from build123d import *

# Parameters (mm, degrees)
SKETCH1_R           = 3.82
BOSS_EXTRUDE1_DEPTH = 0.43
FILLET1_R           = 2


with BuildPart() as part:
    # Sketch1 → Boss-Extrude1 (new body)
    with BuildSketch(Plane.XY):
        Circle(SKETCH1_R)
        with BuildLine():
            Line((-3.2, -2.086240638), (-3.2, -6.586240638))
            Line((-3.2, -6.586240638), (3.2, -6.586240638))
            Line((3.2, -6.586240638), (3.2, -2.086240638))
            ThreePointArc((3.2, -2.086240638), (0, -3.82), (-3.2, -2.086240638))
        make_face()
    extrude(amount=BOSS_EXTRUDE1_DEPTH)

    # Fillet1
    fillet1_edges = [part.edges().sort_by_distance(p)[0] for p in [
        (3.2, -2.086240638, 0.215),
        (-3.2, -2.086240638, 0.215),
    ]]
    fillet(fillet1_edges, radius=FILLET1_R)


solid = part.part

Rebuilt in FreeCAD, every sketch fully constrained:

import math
import FreeCAD as App
import Part
import Sketcher
from FreeCAD import Vector
Q = App.Units.Quantity


def edges_at(feature, points):
    """Names of the edges that pass closest to the given points."""
    edges = feature.Shape.Edges
    near = lambda p: min(range(len(edges)), key=lambda i: edges[i].distToShape(Part.Vertex(*p))[0])
    return sorted({f"Edge{near(p) + 1}" for p in points})

doc = App.newDocument("Part")
body = doc.addObject("PartDesign::Body", "Body")

# Sketch on XY plane
sketch1 = doc.addObject("Sketcher::SketchObject", "Sketch")
body.addObject(sketch1)
sketch1.AttachmentSupport = (doc.XY_Plane, [""])
sketch1.MapMode = "FlatFace"
sketch1.addGeometry(Part.LineSegment(Vector(-3.2, -2.1, 0), Vector(-3.2, -6.6, 0)), False)
sketch1.addGeometry(Part.LineSegment(Vector(-3.2, -6.6, 0), Vector(3.2, -6.6, 0)), False)
sketch1.addGeometry(Part.LineSegment(Vector(3.2, -6.6, 0), Vector(3.2, -2.1, 0)), False)
sketch1.addGeometry(Part.ArcOfCircle(Part.Circle(Vector(0, 0, 0), Vector(0, 0, 1), 3.8), math.radians(-33), math.radians(213)), False)
sketch1.addConstraint(Sketcher.Constraint("Coincident", 0, 2, 1, 1))
sketch1.addConstraint(Sketcher.Constraint("Coincident", 1, 2, 2, 1))
sketch1.addConstraint(Sketcher.Constraint("Coincident", 2, 2, 3, 1))
sketch1.addConstraint(Sketcher.Constraint("Coincident", 3, 2, 0, 1))
sketch1.addConstraint(Sketcher.Constraint("Vertical", 0))
sketch1.addConstraint(Sketcher.Constraint("Horizontal", 1))
sketch1.addConstraint(Sketcher.Constraint("Vertical", 2))
sketch1.addConstraint(Sketcher.Constraint("Coincident", 3, 3, -1, 1))
sketch1.addConstraint(Sketcher.Constraint("Horizontal", 2, 2, 3, 2))
sketch1.addConstraint(Sketcher.Constraint("Radius", 3, Q("3.82 mm")))
sketch1.addConstraint(Sketcher.Constraint("DistanceX", 1, 1, 1, 2, Q("6.4 mm")))
sketch1.addConstraint(Sketcher.Constraint("DistanceY", 0, 2, 0, 1, Q("4.5 mm")))
pad1 = doc.addObject("PartDesign::Pad", "Pad")
body.addObject(pad1)
pad1.Profile = sketch1
pad1.Length = 0.43
doc.recompute()

fillet = doc.addObject("PartDesign::Fillet", "Fillet")
body.addObject(fillet)
fillet.Base = (pad1, edges_at(pad1, [(3.2, -2.086, 0.215), (-3.2, -2.086, 0.215)]))
fillet.Radius = 2

doc.recompute()
